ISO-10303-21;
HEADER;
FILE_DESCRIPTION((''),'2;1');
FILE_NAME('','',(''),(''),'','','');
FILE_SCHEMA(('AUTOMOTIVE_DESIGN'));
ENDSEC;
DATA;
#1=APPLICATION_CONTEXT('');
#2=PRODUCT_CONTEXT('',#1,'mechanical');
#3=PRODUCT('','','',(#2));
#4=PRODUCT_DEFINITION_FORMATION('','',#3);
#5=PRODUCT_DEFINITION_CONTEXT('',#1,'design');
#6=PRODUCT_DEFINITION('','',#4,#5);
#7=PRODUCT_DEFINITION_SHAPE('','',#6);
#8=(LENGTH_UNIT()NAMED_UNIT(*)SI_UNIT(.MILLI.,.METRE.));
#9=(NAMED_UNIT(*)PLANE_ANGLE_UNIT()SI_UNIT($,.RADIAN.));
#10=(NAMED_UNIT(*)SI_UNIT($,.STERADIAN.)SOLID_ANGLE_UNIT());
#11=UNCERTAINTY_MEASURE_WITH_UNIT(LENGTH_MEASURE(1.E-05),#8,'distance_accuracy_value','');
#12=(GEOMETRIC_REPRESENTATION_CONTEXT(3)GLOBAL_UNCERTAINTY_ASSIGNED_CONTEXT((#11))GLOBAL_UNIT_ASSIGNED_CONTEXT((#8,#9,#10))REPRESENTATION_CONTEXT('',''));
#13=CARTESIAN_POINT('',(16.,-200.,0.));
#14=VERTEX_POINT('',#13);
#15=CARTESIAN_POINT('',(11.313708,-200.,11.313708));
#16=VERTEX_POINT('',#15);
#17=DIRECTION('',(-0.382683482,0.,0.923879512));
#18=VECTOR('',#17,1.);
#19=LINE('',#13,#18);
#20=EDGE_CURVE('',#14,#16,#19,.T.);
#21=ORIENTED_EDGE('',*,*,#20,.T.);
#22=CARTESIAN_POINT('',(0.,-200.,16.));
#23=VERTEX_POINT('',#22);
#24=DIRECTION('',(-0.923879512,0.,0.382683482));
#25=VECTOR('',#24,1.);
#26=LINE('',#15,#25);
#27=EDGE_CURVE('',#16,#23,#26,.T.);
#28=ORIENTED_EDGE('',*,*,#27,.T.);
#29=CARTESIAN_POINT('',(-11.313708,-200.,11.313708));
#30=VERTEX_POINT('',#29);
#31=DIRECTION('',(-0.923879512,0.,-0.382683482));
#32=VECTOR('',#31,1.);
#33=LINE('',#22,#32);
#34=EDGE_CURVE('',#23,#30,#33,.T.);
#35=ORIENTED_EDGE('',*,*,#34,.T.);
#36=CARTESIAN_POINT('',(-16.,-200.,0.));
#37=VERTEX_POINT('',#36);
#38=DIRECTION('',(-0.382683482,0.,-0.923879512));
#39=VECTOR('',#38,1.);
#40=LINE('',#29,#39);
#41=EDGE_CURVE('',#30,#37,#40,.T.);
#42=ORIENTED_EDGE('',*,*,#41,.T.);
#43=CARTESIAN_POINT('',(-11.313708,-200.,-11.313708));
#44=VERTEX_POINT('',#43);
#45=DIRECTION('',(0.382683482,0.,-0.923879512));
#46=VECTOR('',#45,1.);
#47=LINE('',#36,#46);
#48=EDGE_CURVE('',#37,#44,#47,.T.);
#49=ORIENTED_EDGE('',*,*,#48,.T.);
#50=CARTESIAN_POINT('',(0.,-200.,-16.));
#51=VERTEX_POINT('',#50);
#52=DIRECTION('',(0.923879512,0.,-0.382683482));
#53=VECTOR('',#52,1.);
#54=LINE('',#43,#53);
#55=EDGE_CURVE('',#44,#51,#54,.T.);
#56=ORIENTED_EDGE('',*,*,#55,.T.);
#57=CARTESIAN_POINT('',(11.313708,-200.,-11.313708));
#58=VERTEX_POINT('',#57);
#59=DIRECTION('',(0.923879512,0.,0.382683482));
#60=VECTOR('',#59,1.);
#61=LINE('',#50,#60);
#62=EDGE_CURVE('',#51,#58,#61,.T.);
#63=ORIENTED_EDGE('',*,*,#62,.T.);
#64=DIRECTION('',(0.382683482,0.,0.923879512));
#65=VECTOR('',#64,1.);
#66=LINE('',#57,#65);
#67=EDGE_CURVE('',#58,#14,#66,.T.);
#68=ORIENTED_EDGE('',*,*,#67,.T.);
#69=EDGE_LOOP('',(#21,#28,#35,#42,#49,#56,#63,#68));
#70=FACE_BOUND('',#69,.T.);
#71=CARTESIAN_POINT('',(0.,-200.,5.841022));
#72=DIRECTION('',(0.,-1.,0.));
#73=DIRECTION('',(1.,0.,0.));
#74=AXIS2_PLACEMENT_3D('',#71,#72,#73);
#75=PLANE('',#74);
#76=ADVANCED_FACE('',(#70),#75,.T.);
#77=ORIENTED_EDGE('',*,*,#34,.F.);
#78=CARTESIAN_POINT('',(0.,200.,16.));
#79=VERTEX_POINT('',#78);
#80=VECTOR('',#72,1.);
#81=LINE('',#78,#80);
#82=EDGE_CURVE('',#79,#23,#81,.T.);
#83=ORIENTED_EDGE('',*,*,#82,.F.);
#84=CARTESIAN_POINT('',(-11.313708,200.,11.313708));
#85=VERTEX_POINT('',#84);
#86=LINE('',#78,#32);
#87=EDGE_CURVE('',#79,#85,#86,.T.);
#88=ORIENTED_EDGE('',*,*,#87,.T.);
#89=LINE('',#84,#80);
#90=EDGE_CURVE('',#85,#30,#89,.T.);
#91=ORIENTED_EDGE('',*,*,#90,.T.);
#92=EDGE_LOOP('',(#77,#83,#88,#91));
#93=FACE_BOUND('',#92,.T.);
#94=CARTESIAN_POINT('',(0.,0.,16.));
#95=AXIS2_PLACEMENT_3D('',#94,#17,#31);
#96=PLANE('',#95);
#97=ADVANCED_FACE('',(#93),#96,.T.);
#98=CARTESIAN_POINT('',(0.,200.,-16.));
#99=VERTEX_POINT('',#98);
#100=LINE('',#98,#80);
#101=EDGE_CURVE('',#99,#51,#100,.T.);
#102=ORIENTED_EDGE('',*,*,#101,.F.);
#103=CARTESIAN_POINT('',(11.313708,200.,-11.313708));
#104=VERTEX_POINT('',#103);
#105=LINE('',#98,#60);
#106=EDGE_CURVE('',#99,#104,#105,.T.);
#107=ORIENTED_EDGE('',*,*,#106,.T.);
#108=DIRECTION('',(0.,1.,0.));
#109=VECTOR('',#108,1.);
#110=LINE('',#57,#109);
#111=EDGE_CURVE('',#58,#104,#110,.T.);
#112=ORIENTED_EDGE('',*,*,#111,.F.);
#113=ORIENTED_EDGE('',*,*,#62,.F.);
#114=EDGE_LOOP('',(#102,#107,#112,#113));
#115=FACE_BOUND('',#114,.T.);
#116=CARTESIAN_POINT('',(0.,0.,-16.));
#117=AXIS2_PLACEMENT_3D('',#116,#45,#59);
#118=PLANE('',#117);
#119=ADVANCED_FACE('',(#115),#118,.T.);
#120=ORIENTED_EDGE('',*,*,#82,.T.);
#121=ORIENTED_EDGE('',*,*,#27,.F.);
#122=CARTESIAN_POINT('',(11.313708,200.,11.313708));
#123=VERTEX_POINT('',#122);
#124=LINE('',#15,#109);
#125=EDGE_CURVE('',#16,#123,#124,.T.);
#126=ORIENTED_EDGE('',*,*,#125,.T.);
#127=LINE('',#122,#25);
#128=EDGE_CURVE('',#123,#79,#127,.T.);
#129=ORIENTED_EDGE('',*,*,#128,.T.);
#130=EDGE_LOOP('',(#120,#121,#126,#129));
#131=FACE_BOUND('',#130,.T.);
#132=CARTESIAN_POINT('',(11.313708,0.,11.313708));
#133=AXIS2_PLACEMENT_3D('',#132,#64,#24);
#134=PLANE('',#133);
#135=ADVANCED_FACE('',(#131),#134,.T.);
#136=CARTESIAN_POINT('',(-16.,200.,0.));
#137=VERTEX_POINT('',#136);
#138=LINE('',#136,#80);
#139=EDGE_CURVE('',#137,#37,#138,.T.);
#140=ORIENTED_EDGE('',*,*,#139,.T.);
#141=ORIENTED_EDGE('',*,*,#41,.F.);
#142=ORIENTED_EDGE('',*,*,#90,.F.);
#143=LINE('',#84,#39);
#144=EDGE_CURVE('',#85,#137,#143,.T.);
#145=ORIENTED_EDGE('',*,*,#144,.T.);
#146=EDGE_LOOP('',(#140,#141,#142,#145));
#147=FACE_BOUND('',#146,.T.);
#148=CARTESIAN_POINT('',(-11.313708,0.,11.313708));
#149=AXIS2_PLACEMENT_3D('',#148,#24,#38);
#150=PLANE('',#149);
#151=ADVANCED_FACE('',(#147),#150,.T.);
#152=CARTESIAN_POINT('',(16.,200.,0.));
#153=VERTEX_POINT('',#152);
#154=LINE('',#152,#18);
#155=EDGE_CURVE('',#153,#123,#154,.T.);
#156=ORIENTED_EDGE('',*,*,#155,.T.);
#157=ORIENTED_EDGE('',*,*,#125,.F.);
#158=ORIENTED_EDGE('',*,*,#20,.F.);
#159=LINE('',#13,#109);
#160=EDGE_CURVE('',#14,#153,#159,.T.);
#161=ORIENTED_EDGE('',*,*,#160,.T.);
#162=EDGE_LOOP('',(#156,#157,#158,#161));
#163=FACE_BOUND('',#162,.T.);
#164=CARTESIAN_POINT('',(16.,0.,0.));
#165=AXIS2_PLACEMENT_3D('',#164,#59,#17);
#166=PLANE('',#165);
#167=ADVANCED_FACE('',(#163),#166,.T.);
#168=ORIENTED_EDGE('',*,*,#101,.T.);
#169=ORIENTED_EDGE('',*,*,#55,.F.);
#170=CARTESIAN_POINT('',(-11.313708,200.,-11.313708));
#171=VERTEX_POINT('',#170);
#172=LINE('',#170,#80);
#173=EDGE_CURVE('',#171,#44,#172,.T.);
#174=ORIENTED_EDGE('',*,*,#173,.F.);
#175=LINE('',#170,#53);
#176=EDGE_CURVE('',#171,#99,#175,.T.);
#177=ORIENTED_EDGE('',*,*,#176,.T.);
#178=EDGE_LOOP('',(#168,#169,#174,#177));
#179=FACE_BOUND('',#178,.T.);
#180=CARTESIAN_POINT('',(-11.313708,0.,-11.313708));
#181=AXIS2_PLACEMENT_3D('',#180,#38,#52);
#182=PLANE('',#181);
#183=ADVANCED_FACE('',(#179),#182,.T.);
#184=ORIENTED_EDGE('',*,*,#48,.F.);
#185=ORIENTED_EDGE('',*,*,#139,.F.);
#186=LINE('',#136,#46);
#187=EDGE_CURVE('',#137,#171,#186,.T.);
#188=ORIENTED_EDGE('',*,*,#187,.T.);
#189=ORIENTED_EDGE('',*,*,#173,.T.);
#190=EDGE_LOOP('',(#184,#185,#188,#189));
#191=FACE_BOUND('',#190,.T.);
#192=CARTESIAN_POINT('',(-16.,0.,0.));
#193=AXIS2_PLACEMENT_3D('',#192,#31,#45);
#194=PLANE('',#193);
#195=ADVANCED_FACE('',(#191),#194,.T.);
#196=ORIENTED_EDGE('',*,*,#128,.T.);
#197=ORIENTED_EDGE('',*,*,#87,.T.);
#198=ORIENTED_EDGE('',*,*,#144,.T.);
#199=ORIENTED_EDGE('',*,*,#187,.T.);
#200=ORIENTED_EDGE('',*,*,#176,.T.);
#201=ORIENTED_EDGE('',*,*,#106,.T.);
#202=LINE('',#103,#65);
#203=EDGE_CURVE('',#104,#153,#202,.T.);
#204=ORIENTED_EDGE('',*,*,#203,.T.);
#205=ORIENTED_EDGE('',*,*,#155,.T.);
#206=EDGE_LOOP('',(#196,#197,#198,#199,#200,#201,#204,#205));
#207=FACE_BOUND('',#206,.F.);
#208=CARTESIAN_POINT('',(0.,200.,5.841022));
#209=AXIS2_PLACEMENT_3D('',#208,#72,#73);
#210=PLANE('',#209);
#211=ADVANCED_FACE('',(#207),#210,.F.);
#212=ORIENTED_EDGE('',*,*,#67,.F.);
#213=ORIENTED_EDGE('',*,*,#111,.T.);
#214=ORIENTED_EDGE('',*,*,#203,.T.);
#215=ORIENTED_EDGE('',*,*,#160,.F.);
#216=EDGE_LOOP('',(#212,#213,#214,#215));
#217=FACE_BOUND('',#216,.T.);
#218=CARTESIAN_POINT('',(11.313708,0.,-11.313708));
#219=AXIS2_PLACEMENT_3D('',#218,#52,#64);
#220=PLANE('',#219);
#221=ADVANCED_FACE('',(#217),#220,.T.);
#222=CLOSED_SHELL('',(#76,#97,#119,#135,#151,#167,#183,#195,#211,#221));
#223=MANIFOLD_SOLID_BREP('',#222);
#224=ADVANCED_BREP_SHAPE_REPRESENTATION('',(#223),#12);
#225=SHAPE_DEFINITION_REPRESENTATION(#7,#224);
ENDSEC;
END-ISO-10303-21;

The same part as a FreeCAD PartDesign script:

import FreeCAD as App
import Part
import Sketcher
Q = App.Units.Quantity


def add_polygon(sketch, points):
    """Adds a closed chain of lines whose ends are joined by coincident constraints."""
    first, n = sketch.GeometryCount, len(points)
    for a, b in zip(points, points[1:] + points[:1]):
        sketch.addGeometry(Part.LineSegment(App.Vector(*a, 0), App.Vector(*b, 0)), False)
    for i in range(n):
        sketch.addConstraint(Sketcher.Constraint("Coincident", first + i, 2, first + (i + 1) % n, 1))

doc = App.newDocument("Part")
body = doc.addObject("PartDesign::Body", "Body")

# Sketch on XZ plane
sketch1 = body.newObject("Sketcher::SketchObject", "Sketch")
sketch1.AttachmentSupport = (doc.getObject("XZ_Plane"), [""])
sketch1.MapMode = "FlatFace"
add_polygon(sketch1, [(11.313708, 11.313708), (0, 16), (-11.313708, 11.313708), (-16, 0), (-11.313708, -11.313708), (0, -16), (11.313708, -11.313708), (16, 0)])  # lines 0-7
sketch1.addConstraint(Sketcher.Constraint("Symmetric", 0, 2, 4, 2, -1, 1))
sketch1.addConstraint(Sketcher.Constraint("Symmetric", 1, 2, 5, 2, -1, 1))
sketch1.addConstraint(Sketcher.Constraint("Symmetric", 2, 2, 6, 2, -1, 1))
sketch1.addConstraint(Sketcher.Constraint("Symmetric", 3, 2, 7, 2, -1, 1))
sketch1.addConstraint(Sketcher.Constraint("Symmetric", 3, 2, 5, 2, -2))
sketch1.addConstraint(Sketcher.Constraint("PointOnObject", 0, 2, -2))
sketch1.addConstraint(Sketcher.Constraint("PointOnObject", 2, 2, -1))
sketch1.addConstraint(Sketcher.Constraint("Perpendicular", 0, 2))
sketch1.addConstraint(Sketcher.Constraint("Equal", 1, 2))
sketch1.addConstraint(Sketcher.Constraint("DistanceY", -1, 1, 0, 2, 16.0))
sketch1.addConstraint(Sketcher.Constraint("Angle", 0, Q("157.499997 deg")))
pad1 = body.newObject("PartDesign::Pad", "Pad")
pad1.Profile = sketch1
pad1.Length = 400
pad1.Midplane = True

doc.recompute()
